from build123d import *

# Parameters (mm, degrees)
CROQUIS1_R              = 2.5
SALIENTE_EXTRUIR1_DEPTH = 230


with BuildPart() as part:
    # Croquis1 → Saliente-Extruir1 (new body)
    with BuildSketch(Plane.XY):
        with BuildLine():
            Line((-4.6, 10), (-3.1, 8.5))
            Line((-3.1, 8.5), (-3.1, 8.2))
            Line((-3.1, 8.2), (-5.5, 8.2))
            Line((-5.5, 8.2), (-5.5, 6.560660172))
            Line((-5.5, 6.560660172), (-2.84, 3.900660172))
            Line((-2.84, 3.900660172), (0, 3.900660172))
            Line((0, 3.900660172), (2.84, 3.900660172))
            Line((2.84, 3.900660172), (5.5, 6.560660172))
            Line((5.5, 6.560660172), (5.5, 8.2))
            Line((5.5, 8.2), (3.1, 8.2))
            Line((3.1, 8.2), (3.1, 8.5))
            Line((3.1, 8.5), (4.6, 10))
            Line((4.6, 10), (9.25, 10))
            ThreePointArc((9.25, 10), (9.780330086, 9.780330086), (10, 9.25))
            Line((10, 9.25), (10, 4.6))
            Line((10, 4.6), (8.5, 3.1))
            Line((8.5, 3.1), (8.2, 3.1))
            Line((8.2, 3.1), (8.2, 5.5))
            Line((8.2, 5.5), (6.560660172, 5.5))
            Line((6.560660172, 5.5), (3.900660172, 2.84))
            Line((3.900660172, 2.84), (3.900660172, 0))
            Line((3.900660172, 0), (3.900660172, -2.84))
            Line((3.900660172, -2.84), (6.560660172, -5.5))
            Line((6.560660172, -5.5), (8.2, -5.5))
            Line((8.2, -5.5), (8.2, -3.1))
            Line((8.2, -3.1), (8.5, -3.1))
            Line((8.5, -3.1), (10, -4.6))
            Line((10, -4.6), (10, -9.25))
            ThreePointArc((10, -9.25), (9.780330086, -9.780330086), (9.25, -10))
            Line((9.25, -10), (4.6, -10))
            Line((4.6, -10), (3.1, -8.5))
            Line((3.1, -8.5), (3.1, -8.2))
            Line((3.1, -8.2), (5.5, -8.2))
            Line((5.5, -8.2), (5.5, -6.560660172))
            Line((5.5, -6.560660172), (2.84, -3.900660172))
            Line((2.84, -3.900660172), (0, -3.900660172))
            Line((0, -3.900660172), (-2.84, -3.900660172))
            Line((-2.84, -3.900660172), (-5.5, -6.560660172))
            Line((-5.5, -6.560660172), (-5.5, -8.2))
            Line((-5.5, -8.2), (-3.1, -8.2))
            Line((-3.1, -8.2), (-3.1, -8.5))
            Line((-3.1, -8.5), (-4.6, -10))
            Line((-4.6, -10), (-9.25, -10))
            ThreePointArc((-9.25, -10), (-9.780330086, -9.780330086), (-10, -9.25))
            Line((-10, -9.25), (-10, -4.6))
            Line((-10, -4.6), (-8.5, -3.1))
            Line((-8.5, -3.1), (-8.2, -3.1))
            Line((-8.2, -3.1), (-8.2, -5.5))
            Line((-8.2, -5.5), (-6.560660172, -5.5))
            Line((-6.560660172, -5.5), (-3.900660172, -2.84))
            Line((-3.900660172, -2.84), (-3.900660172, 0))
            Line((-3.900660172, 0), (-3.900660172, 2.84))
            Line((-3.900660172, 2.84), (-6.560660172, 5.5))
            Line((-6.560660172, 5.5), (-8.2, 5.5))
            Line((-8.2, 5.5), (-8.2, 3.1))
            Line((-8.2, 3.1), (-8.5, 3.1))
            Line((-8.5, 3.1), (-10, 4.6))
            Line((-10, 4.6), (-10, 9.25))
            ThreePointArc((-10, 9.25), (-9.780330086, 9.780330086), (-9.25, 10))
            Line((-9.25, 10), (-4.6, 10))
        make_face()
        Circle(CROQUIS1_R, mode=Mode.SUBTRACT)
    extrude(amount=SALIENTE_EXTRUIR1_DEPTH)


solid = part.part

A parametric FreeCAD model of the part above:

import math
import FreeCAD as App
import Part
import Sketcher

doc = App.newDocument("Part")
body = doc.addObject("PartDesign::Body", "Body")

# Sketch on XY plane
sketch1 = body.newObject("Sketcher::SketchObject", "Sketch")
sketch1.AttachmentSupport = (doc.getObject("XY_Plane"), [""])
sketch1.MapMode = "FlatFace"
sketch1.addGeometry(Part.LineSegment(App.Vector(-3.1, 8.5, 0), App.Vector(-4.6, 10, 0)), False)
sketch1.addGeometry(Part.LineSegment(App.Vector(-4.6, 10, 0), App.Vector(-9.25, 10, 0)), False)
sketch1.addGeometry(Part.ArcOfCircle(Part.Circle(App.Vector(-9.25, 9.25, 0), App.Vector(0, 0, 1), 0.75), math.radians(90), math.radians(180)), False)
sketch1.addGeometry(Part.LineSegment(App.Vector(-10, 9.25, 0), App.Vector(-10, 4.6, 0)), False)
sketch1.addGeometry(Part.LineSegment(App.Vector(-10, 4.6, 0), App.Vector(-8.5, 3.1, 0)), False)
sketch1.addGeometry(Part.LineSegment(App.Vector(-8.5, 3.1, 0), App.Vector(-8.2, 3.1, 0)), False)
sketch1.addGeometry(Part.LineSegment(App.Vector(-8.2, 3.1, 0), App.Vector(-8.2, 5.5, 0)), False)
sketch1.addGeometry(Part.LineSegment(App.Vector(-8.2, 5.5, 0), App.Vector(-6.56, 5.5, 0)), False)
sketch1.addGeometry(Part.LineSegment(App.Vector(-6.56, 5.5, 0), App.Vector(-3.9, 2.84, 0)), False)
sketch1.addGeometry(Part.LineSegment(App.Vector(-3.9, 2.84, 0), App.Vector(-3.9, -2.84, 0)), False)
sketch1.addGeometry(Part.LineSegment(App.Vector(-3.9, -2.84, 0), App.Vector(-6.56, -5.5, 0)), False)
sketch1.addGeometry(Part.LineSegment(App.Vector(-6.56, -5.5, 0), App.Vector(-8.2, -5.5, 0)), False)
sketch1.addGeometry(Part.LineSegment(App.Vector(-8.2, -5.5, 0), App.Vector(-8.2, -3.1, 0)), False)
sketch1.addGeometry(Part.LineSegment(App.Vector(-8.2, -3.1, 0), App.Vector(-8.5, -3.1, 0)), False)
sketch1.addGeometry(Part.LineSegment(App.Vector(-8.5, -3.1, 0), App.Vector(-10, -4.6, 0)), False)
sketch1.addGeometry(Part.LineSegment(App.Vector(-10, -4.6, 0), App.Vector(-10, -9.25, 0)), False)
sketch1.addGeometry(Part.ArcOfCircle(Part.Circle(App.Vector(-9.25, -9.25, 0), App.Vector(0, 0, 1), 0.75), math.radians(180), math.radians(270)), False)
sketch1.addGeometry(Part.LineSegment(App.Vector(-9.25, -10, 0), App.Vector(-4.6, -10, 0)), False)
sketch1.addGeometry(Part.LineSegment(App.Vector(-4.6, -10, 0), App.Vector(-3.1, -8.5, 0)), False)
sketch1.addGeometry(Part.LineSegment(App.Vector(-3.1, -8.5, 0), App.Vector(-3.1, -8.2, 0)), False)
sketch1.addGeometry(Part.LineSegment(App.Vector(-3.1, -8.2, 0), App.Vector(-5.5, -8.2, 0)), False)
sketch1.addGeometry(Part.LineSegment(App.Vector(-5.5, -8.2, 0), App.Vector(-5.5, -6.56, 0)), False)
sketch1.addGeometry(Part.LineSegment(App.Vector(-5.5, -6.56, 0), App.Vector(-2.84, -3.9, 0)), False)
sketch1.addGeometry(Part.LineSegment(App.Vector(-2.84, -3.9, 0), App.Vector(2.84, -3.9, 0)), False)
sketch1.addGeometry(Part.LineSegment(App.Vector(2.84, -3.9, 0), App.Vector(5.5, -6.56, 0)), False)
sketch1.addGeometry(Part.LineSegment(App.Vector(5.5, -6.56, 0), App.Vector(5.5, -8.2, 0)), False)
sketch1.addGeometry(Part.LineSegment(App.Vector(5.5, -8.2, 0), App.Vector(3.1, -8.2, 0)), False)
sketch1.addGeometry(Part.LineSegment(App.Vector(3.1, -8.2, 0), App.Vector(3.1, -8.5, 0)), False)
sketch1.addGeometry(Part.LineSegment(App.Vector(3.1, -8.5, 0), App.Vector(4.6, -10, 0)), False)
sketch1.addGeometry(Part.LineSegment(App.Vector(4.6, -10, 0), App.Vector(9.25, -10, 0)), False)
sketch1.addGeometry(Part.ArcOfCircle(Part.Circle(App.Vector(9.25, -9.25, 0), App.Vector(0, 0, 1), 0.75), math.radians(-90), math.radians(0)), False)
sketch1.addGeometry(Part.LineSegment(App.Vector(10, -9.25, 0), App.Vector(10, -4.6, 0)), False)
sketch1.addGeometry(Part.LineSegment(App.Vector(10, -4.6, 0), App.Vector(8.5, -3.1, 0)), False)
sketch1.addGeometry(Part.LineSegment(App.Vector(8.5, -3.1, 0), App.Vector(8.2, -3.1, 0)), False)
sketch1.addGeometry(Part.LineSegment(App.Vector(8.2, -3.1, 0), App.Vector(8.2, -5.5, 0)), False)
sketch1.addGeometry(Part.LineSegment(App.Vector(8.2, -5.5, 0), App.Vector(6.56, -5.5, 0)), False)
sketch1.addGeometry(Part.LineSegment(App.Vector(6.56, -5.5, 0), App.Vector(3.9, -2.84, 0)), False)
sketch1.addGeometry(Part.LineSegment(App.Vector(3.9, -2.84, 0), App.Vector(3.9, 2.84, 0)), False)
sketch1.addGeometry(Part.LineSegment(App.Vector(3.9, 2.84, 0), App.Vector(6.56, 5.5, 0)), False)
sketch1.addGeometry(Part.LineSegment(App.Vector(6.56, 5.5, 0), App.Vector(8.2, 5.5, 0)), False)
sketch1.addGeometry(Part.LineSegment(App.Vector(8.2, 5.5, 0), App.Vector(8.2, 3.1, 0)), False)
sketch1.addGeometry(Part.LineSegment(App.Vector(8.2, 3.1, 0), App.Vector(8.5, 3.1, 0)), False)
sketch1.addGeometry(Part.LineSegment(App.Vector(8.5, 3.1, 0), App.Vector(10, 4.6, 0)), False)
sketch1.addGeometry(Part.LineSegment(App.Vector(10, 4.6, 0), App.Vector(10, 9.25, 0)), False)
sketch1.addGeometry(Part.ArcOfCircle(Part.Circle(App.Vector(9.25, 9.25, 0), App.Vector(0, 0, 1), 0.75), math.radians(0), math.radians(90)), False)
sketch1.addGeometry(Part.LineSegment(App.Vector(9.25, 10, 0), App.Vector(4.6, 10, 0)), False)
sketch1.addGeometry(Part.LineSegment(App.Vector(4.6, 10, 0), App.Vector(3.1, 8.5, 0)), False)
sketch1.addGeometry(Part.LineSegment(App.Vector(3.1, 8.5, 0), App.Vector(3.1, 8.2, 0)), False)
sketch1.addGeometry(Part.LineSegment(App.Vector(3.1, 8.2, 0), App.Vector(5.5, 8.2, 0)), False)
sketch1.addGeometry(Part.LineSegment(App.Vector(5.5, 8.2, 0), App.Vector(5.5, 6.56, 0)), False)
sketch1.addGeometry(Part.LineSegment(App.Vector(5.5, 6.56, 0), App.Vector(2.84, 3.9, 0)), False)
sketch1.addGeometry(Part.LineSegment(App.Vector(2.84, 3.9, 0), App.Vector(-2.84, 3.9, 0)), False)
sketch1.addGeometry(Part.LineSegment(App.Vector(-2.84, 3.9, 0), App.Vector(-5.5, 6.56, 0)), False)
sketch1.addGeometry(Part.LineSegment(App.Vector(-5.5, 6.56, 0), App.Vector(-5.5, 8.2, 0)), False)
sketch1.addGeometry(Part.LineSegment(App.Vector(-5.5, 8.2, 0), App.Vector(-3.1, 8.2, 0)), False)
sketch1.addGeometry(Part.LineSegment(App.Vector(-3.1, 8.2, 0), App.Vector(-3.1, 8.5, 0)), False)
sketch1.addGeometry(Part.Circle(App.Vector(0, 0, 0), App.Vector(0, 0, 1), 2.5), False)
sketch1.addConstraint(Sketcher.Constraint("Coincident", 0, 2, 1, 1))
sketch1.addConstraint(Sketcher.Constraint("Tangent", 1, 2, 2, 1))
sketch1.addConstraint(Sketcher.Constraint("Tangent", 2, 2, 3, 1))
sketch1.addConstraint(Sketcher.Constraint("Coincident", 3, 2, 4, 1))
sketch1.addConstraint(Sketcher.Constraint("Coincident", 4, 2, 5, 1))
sketch1.addConstraint(Sketcher.Constraint("Coincident", 5, 2, 6, 1))
sketch1.addConstraint(Sketcher.Constraint("Coincident", 6, 2, 7, 1))
sketch1.addConstraint(Sketcher.Constraint("Coincident", 7, 2, 8, 1))
sketch1.addConstraint(Sketcher.Constraint("Coincident", 8, 2, 9, 1))
sketch1.addConstraint(Sketcher.Constraint("Coincident", 9, 2, 10, 1))
sketch1.addConstraint(Sketcher.Constraint("Coincident", 10, 2, 11, 1))
sketch1.addConstraint(Sketcher.Constraint("Coincident", 11, 2, 12, 1))
sketch1.addConstraint(Sketcher.Constraint("Coincident", 12, 2, 13, 1))
sketch1.addConstraint(Sketcher.Constraint("Coincident", 13, 2, 14, 1))
sketch1.addConstraint(Sketcher.Constraint("Coincident", 14, 2, 15, 1))
sketch1.addConstraint(Sketcher.Constraint("Tangent", 15, 2, 16, 1))
sketch1.addConstraint(Sketcher.Constraint("Tangent", 16, 2, 17, 1))
sketch1.addConstraint(Sketcher.Constraint("Coincident", 17, 2, 18, 1))
sketch1.addConstraint(Sketcher.Constraint("Coincident", 18, 2, 19, 1))
sketch1.addConstraint(Sketcher.Constraint("Coincident", 19, 2, 20, 1))
sketch1.addConstraint(Sketcher.Constraint("Coincident", 20, 2, 21, 1))
sketch1.addConstraint(Sketcher.Constraint("Coincident", 21, 2, 22, 1))
sketch1.addConstraint(Sketcher.Constraint("Coincident", 22, 2, 23, 1))
sketch1.addConstraint(Sketcher.Constraint("Coincident", 23, 2, 24, 1))
sketch1.addConstraint(Sketcher.Constraint("Coincident", 24, 2, 25, 1))
sketch1.addConstraint(Sketcher.Constraint("Coincident", 25, 2, 26, 1))
sketch1.addConstraint(Sketcher.Constraint("Coincident", 26, 2, 27, 1))
sketch1.addConstraint(Sketcher.Constraint("Coincident", 27, 2, 28, 1))
sketch1.addConstraint(Sketcher.Constraint("Coincident", 28, 2, 29, 1))
sketch1.addConstraint(Sketcher.Constraint("Tangent", 29, 2, 30, 1))
sketch1.addConstraint(Sketcher.Constraint("Tangent", 30, 2, 31, 1))
sketch1.addConstraint(Sketcher.Constraint("Coincident", 31, 2, 32, 1))
sketch1.addConstraint(Sketcher.Constraint("Coincident", 32, 2, 33, 1))
sketch1.addConstraint(Sketcher.Constraint("Coincident", 33, 2, 34, 1))
sketch1.addConstraint(Sketcher.Constraint("Coincident", 34, 2, 35, 1))
sketch1.addConstraint(Sketcher.Constraint("Coincident", 35, 2, 36, 1))
sketch1.addConstraint(Sketcher.Constraint("Coincident", 36, 2, 37, 1))
sketch1.addConstraint(Sketcher.Constraint("Coincident", 37, 2, 38, 1))
sketch1.addConstraint(Sketcher.Constraint("Coincident", 38, 2, 39, 1))
sketch1.addConstraint(Sketcher.Constraint("Coincident", 39, 2, 40, 1))
sketch1.addConstraint(Sketcher.Constraint("Coincident", 40, 2, 41, 1))
sketch1.addConstraint(Sketcher.Constraint("Coincident", 41, 2, 42, 1))
sketch1.addConstraint(Sketcher.Constraint("Coincident", 42, 2, 43, 1))
sketch1.addConstraint(Sketcher.Constraint("Tangent", 43, 2, 44, 1))
sketch1.addConstraint(Sketcher.Constraint("Tangent", 44, 2, 45, 1))
sketch1.addConstraint(Sketcher.Constraint("Coincident", 45, 2, 46, 1))
sketch1.addConstraint(Sketcher.Constraint("Coincident", 46, 2, 47, 1))
sketch1.addConstraint(Sketcher.Constraint("Coincident", 47, 2, 48, 1))
sketch1.addConstraint(Sketcher.Constraint("Coincident", 48, 2, 49, 1))
sketch1.addConstraint(Sketcher.Constraint("Coincident", 49, 2, 50, 1))
sketch1.addConstraint(Sketcher.Constraint("Coincident", 50, 2, 51, 1))
sketch1.addConstraint(Sketcher.Constraint("Coincident", 51, 2, 52, 1))
sketch1.addConstraint(Sketcher.Constraint("Coincident", 52, 2, 53, 1))
sketch1.addConstraint(Sketcher.Constraint("Coincident", 53, 2, 54, 1))
sketch1.addConstraint(Sketcher.Constraint("Coincident", 54, 2, 55, 1))
sketch1.addConstraint(Sketcher.Constraint("Coincident", 55, 2, 0, 1))
sketch1.addConstraint(Sketcher.Constraint("Horizontal", 1))
sketch1.addConstraint(Sketcher.Constraint("Vertical", 3))
sketch1.addConstraint(Sketcher.Constraint("Horizontal", 5))
sketch1.addConstraint(Sketcher.Constraint("Vertical", 6))
sketch1.addConstraint(Sketcher.Constraint("Horizontal", 7))
sketch1.addConstraint(Sketcher.Constraint("Vertical", 9))
sketch1.addConstraint(Sketcher.Constraint("Horizontal", 11))
sketch1.addConstraint(Sketcher.Constraint("Vertical", 12))
sketch1.addConstraint(Sketcher.Constraint("Horizontal", 13))
sketch1.addConstraint(Sketcher.Constraint("Vertical", 15))
sketch1.addConstraint(Sketcher.Constraint("Horizontal", 17))
sketch1.addConstraint(Sketcher.Constraint("Vertical", 19))
sketch1.addConstraint(Sketcher.Constraint("Horizontal", 20))
sketch1.addConstraint(Sketcher.Constraint("Vertical", 21))
sketch1.addConstraint(Sketcher.Constraint("Horizontal", 23))
sketch1.addConstraint(Sketcher.Constraint("Vertical", 25))
sketch1.addConstraint(Sketcher.Constraint("Horizontal", 26))
sketch1.addConstraint(Sketcher.Constraint("Vertical", 27))
sketch1.addConstraint(Sketcher.Constraint("Horizontal", 29))
sketch1.addConstraint(Sketcher.Constraint("Vertical", 31))
sketch1.addConstraint(Sketcher.Constraint("Horizontal", 33))
sketch1.addConstraint(Sketcher.Constraint("Vertical", 34))
sketch1.addConstraint(Sketcher.Constraint("Horizontal", 35))
sketch1.addConstraint(Sketcher.Constraint("Vertical", 37))
sketch1.addConstraint(Sketcher.Constraint("Horizontal", 39))
sketch1.addConstraint(Sketcher.Constraint("Vertical", 40))
sketch1.addConstraint(Sketcher.Constraint("Horizontal", 41))
sketch1.addConstraint(Sketcher.Constraint("Vertical", 43))
sketch1.addConstraint(Sketcher.Constraint("Horizontal", 45))
sketch1.addConstraint(Sketcher.Constraint("Vertical", 47))
sketch1.addConstraint(Sketcher.Constraint("Horizontal", 48))
sketch1.addConstraint(Sketcher.Constraint("Vertical", 49))
sketch1.addConstraint(Sketcher.Constraint("Horizontal", 51))
sketch1.addConstraint(Sketcher.Constraint("Vertical", 53))
sketch1.addConstraint(Sketcher.Constraint("Horizontal", 54))
sketch1.addConstraint(Sketcher.Constraint("Vertical", 55))
sketch1.addConstraint(Sketcher.Constraint("Coincident", 56, 3, -1, 1))
sketch1.addConstraint(Sketcher.Constraint("Equal", 2, 16))
sketch1.addConstraint(Sketcher.Constraint("Equal", 16, 30))
sketch1.addConstraint(Sketcher.Constraint("Equal", 30, 44))
sketch1.addConstraint(Sketcher.Constraint("Symmetric", 2, 3, 30, 3, -1, 1))
sketch1.addConstraint(Sketcher.Constraint("Symmetric", 16, 3, 44, 3, -1, 1))
sketch1.addConstraint(Sketcher.Constraint("Symmetric", 4, 2, 32, 2, -1, 1))
sketch1.addConstraint(Sketcher.Constraint("Symmetric", 6, 2, 34, 2, -1, 1))
sketch1.addConstraint(Sketcher.Constraint("Symmetric", 8, 2, 36, 2, -1, 1))
sketch1.addConstraint(Sketcher.Constraint("Symmetric", 10, 2, 38, 2, -1, 1))
sketch1.addConstraint(Sketcher.Constraint("Symmetric", 12, 2, 40, 2, -1, 1))
sketch1.addConstraint(Sketcher.Constraint("Symmetric", 18, 2, 46, 2, -1, 1))
sketch1.addConstraint(Sketcher.Constraint("Symmetric", 20, 2, 48, 2, -1, 1))
sketch1.addConstraint(Sketcher.Constraint("Symmetric", 22, 2, 50, 2, -1, 1))
sketch1.addConstraint(Sketcher.Constraint("Symmetric", 24, 2, 52, 2, -1, 1))
sketch1.addConstraint(Sketcher.Constraint("Symmetric", 26, 2, 54, 2, -1, 1))
sketch1.addConstraint(Sketcher.Constraint("Symmetric", 16, 3, 30, 3, -2))
sketch1.addConstraint(Sketcher.Constraint("Symmetric", 21, 2, 24, 2, -2))
sketch1.addConstraint(Sketcher.Constraint("Symmetric", 19, 2, 26, 2, -2))
sketch1.addConstraint(Sketcher.Constraint("Symmetric", 13, 2, 32, 2, -2))
sketch1.addConstraint(Sketcher.Constraint("Symmetric", 11, 2, 34, 2, -2))
sketch1.addConstraint(Sketcher.Constraint("Parallel", 0, 4))
sketch1.addConstraint(Sketcher.Constraint("Parallel", 4, 8))
sketch1.addConstraint(Sketcher.Constraint("Perpendicular", 8, 10))
sketch1.addConstraint(Sketcher.Constraint("Parallel", 10, 14))
sketch1.addConstraint(Sketcher.Constraint("Parallel", 14, 18))
sketch1.addConstraint(Sketcher.Constraint("Parallel", 18, 22))
sketch1.addConstraint(Sketcher.Constraint("Perpendicular", 22, 24))
sketch1.addConstraint(Sketcher.Constraint("Parallel", 24, 28))
sketch1.addConstraint(Sketcher.Constraint("Parallel", 28, 32))
sketch1.addConstraint(Sketcher.Constraint("Parallel", 32, 36))
sketch1.addConstraint(Sketcher.Constraint("Perpendicular", 36, 38))
sketch1.addConstraint(Sketcher.Constraint("Parallel", 38, 42))
sketch1.addConstraint(Sketcher.Constraint("Parallel", 42, 46))
sketch1.addConstraint(Sketcher.Constraint("Parallel", 46, 50))
sketch1.addConstraint(Sketcher.Constraint("Perpendicular", 50, 52))
sketch1.addConstraint(Sketcher.Constraint("Horizontal", 18, 2, 27, 2))
sketch1.addConstraint(Sketcher.Constraint("Horizontal", 14, 2, 31, 2))
sketch1.addConstraint(Sketcher.Constraint("Horizontal", 9, 2, 36, 2))
sketch1.addConstraint(Sketcher.Constraint("Horizontal", 3, 2, 42, 2))
sketch1.addConstraint(Sketcher.Constraint("Horizontal", 46, 2, 55, 2))
sketch1.addConstraint(Sketcher.Constraint("Equal", 45, 3))
sketch1.addConstraint(Sketcher.Constraint("Equal", 54, 6))
sketch1.addConstraint(Sketcher.Constraint("Equal", 51, 9))
sketch1.addConstraint(Sketcher.Constraint("Equal", 41, 19))
sketch1.addConstraint(Sketcher.Constraint("Equal", 39, 21))
sketch1.addConstraint(Sketcher.Constraint("Equal", 0, 4))
sketch1.addConstraint(Sketcher.Constraint("Equal", 10, 22))
sketch1.addConstraint(Sketcher.Constraint("Diameter", 56, 5.0))
sketch1.addConstraint(Sketcher.Constraint("Radius", 2, 0.75))
sketch1.addConstraint(Sketcher.Constraint("DistanceX", 5, 1, 5, 2, 0.3))
sketch1.addConstraint(Sketcher.Constraint("DistanceX", 20, 2, 20, 1, 2.4))
sketch1.addConstraint(Sketcher.Constraint("DistanceY", -1, 1, 0, 2, 10.0))
sketch1.addConstraint(Sketcher.Constraint("DistanceX", 1, 2, 1, 1, 4.65))
sketch1.addConstraint(Sketcher.Constraint("DistanceX", 23, 1, 23, 2, 5.68))
sketch1.addConstraint(Sketcher.Constraint("DistanceX", 4, 2, -1, 1, 8.5))
sketch1.addConstraint(Sketcher.Constraint("DistanceX", 7, 1, 7, 2, 1.63934))
pad1 = body.newObject("PartDesign::Pad", "Pad")
pad1.Profile = sketch1
pad1.Length = 230

doc.recompute()
